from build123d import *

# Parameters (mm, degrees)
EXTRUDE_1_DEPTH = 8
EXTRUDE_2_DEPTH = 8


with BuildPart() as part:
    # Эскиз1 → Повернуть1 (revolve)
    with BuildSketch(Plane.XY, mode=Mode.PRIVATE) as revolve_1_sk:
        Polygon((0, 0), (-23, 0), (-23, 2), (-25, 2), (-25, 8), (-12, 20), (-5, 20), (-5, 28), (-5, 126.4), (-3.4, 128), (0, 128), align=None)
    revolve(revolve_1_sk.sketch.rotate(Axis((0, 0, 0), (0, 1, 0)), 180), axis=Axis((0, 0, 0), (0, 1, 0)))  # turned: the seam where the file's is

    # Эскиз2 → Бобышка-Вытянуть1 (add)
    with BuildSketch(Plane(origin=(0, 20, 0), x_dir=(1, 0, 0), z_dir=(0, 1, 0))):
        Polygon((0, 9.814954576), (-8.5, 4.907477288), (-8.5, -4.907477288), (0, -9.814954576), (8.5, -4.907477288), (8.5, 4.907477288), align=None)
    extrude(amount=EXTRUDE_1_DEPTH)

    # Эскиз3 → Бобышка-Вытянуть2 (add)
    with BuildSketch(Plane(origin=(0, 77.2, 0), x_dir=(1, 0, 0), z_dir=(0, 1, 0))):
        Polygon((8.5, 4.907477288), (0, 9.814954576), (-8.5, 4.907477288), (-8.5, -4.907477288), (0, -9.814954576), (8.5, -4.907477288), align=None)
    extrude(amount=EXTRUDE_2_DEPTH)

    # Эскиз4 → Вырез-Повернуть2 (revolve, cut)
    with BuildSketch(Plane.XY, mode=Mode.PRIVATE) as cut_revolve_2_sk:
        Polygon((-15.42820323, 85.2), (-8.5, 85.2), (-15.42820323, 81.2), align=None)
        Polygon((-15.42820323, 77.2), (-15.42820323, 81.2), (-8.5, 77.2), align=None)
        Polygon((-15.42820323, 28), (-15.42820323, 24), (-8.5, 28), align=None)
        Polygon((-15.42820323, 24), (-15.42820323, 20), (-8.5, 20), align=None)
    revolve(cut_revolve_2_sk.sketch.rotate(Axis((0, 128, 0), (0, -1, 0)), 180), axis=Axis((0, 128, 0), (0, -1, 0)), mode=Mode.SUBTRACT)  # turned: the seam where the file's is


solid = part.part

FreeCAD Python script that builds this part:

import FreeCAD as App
import Part
import Sketcher
Q = App.Units.Quantity

doc = App.newDocument("Part")
body = doc.addObject("PartDesign::Body", "Body")

# Sketch on XY plane
sketch1 = doc.addObject("Sketcher::SketchObject", "Sketch")
body.addObject(sketch1)
sketch1.AttachmentSupport = (doc.XY_Plane, [""])
sketch1.MapMode = "FlatFace"
sketch1.addGeometry([
    Part.LineSegment(App.Vector(-23, 0, 0), App.Vector(0, 0, 0)),  # 0
    Part.LineSegment(App.Vector(0, 0, 0), App.Vector(0, 128, 0)),  # 1
    Part.LineSegment(App.Vector(0, 128, 0), App.Vector(-3.4, 128, 0)),  # 2
    Part.LineSegment(App.Vector(-3.4, 128, 0), App.Vector(-5, 126.4, 0)),  # 3
    Part.LineSegment(App.Vector(-5, 126.4, 0), App.Vector(-5, 20, 0)),  # 4
    Part.LineSegment(App.Vector(-5, 20, 0), App.Vector(-12, 20, 0)),  # 5
    Part.LineSegment(App.Vector(-12, 20, 0), App.Vector(-25, 8, 0)),  # 6
    Part.LineSegment(App.Vector(-25, 8, 0), App.Vector(-25, 2, 0)),  # 7
    Part.LineSegment(App.Vector(-25, 2, 0), App.Vector(-23, 2, 0)),  # 8
    Part.LineSegment(App.Vector(-23, 2, 0), App.Vector(-23, 0, 0)),  # 9
], False)
sketch1.addConstraint([
    Sketcher.Constraint("Coincident", 0, 2, 1, 1),
    Sketcher.Constraint("Coincident", 1, 2, 2, 1),
    Sketcher.Constraint("Coincident", 2, 2, 3, 1),
    Sketcher.Constraint("Coincident", 3, 2, 4, 1),
    Sketcher.Constraint("Coincident", 4, 2, 5, 1),
    Sketcher.Constraint("Coincident", 5, 2, 6, 1),
    Sketcher.Constraint("Coincident", 6, 2, 7, 1),
    Sketcher.Constraint("Coincident", 7, 2, 8, 1),
    Sketcher.Constraint("Coincident", 8, 2, 9, 1),
    Sketcher.Constraint("Coincident", 9, 2, 0, 1),
    Sketcher.Constraint("Horizontal", 0),
    Sketcher.Constraint("Vertical", 1),
    Sketcher.Constraint("Horizontal", 2),
    Sketcher.Constraint("Vertical", 4),
    Sketcher.Constraint("Horizontal", 5),
    Sketcher.Constraint("Vertical", 7),
    Sketcher.Constraint("Horizontal", 8),
    Sketcher.Constraint("Vertical", 9),
    Sketcher.Constraint("Coincident", 0, 2, -1, 1),
    Sketcher.Constraint("Equal", 8, 9),
    Sketcher.Constraint("DistanceX", 0, 1, 0, 2, 23.0),
    Sketcher.Constraint("DistanceX", 5, 2, 5, 1, 7.0),
    Sketcher.Constraint("DistanceX", 8, 1, 8, 2, 2.0),
    Sketcher.Constraint("DistanceY", 1, 1, 1, 2, 128.0),
    Sketcher.Constraint("DistanceY", 7, 2, 7, 1, 6.0),
    Sketcher.Constraint("Angle", 3, Q("-135 deg")),
    Sketcher.Constraint("DistanceX", 2, 2, 2, 1, 3.4),
    Sketcher.Constraint("DistanceY", 4, 2, 4, 1, 106.4),
    Sketcher.Constraint("DistanceX", 3, 2, -1, 1, 5.0),
])
revolution = doc.addObject("PartDesign::Revolution", "Revolution")
body.addObject(revolution)
revolution.Profile = sketch1
revolution.ReferenceAxis = (sketch1, ["V_Axis"])
revolution.Angle = 360

# Sketch on XZ plane
sketch2 = doc.addObject("Sketcher::SketchObject", "Sketch001")
body.addObject(sketch2)
sketch2.AttachmentSupport = (doc.XZ_Plane, [""])
sketch2.MapMode = "FlatFace"
sketch2.AttachmentOffset = App.Placement(App.Vector(0, 0, -20), App.Rotation())
sketch2.addGeometry([
    Part.LineSegment(App.Vector(0, -10, 0), App.Vector(-8, -5, 0)),  # 0
    Part.LineSegment(App.Vector(-8, -5, 0), App.Vector(-8, 5, 0)),  # 1
    Part.LineSegment(App.Vector(-8, 5, 0), App.Vector(0, 10, 0)),  # 2
    Part.LineSegment(App.Vector(0, 10, 0), App.Vector(8, 5, 0)),  # 3
    Part.LineSegment(App.Vector(8, 5, 0), App.Vector(8, -5, 0)),  # 4
    Part.LineSegment(App.Vector(8, -5, 0), App.Vector(0, -10, 0)),  # 5
], False)
sketch2.addConstraint([
    Sketcher.Constraint("Coincident", 0, 2, 1, 1),
    Sketcher.Constraint("Coincident", 1, 2, 2, 1),
    Sketcher.Constraint("Coincident", 2, 2, 3, 1),
    Sketcher.Constraint("Coincident", 3, 2, 4, 1),
    Sketcher.Constraint("Coincident", 4, 2, 5, 1),
    Sketcher.Constraint("Coincident", 5, 2, 0, 1),
    Sketcher.Constraint("Vertical", 1),
    Sketcher.Constraint("Vertical", 4),
    Sketcher.Constraint("Symmetric", 0, 2, 3, 2, -1, 1),
    Sketcher.Constraint("Symmetric", 2, 2, 5, 2, -1, 1),
    Sketcher.Constraint("PointOnObject", 2, 2, -2),
    Sketcher.Constraint("Parallel", 2, 5),
    Sketcher.Constraint("Horizontal", 1, 2, 3, 2),
    Sketcher.Constraint("Angle", 0, Q("150 deg")),
    Sketcher.Constraint("DistanceX", 1, 2, 3, 2, 17.0),
    Sketcher.Constraint("DistanceY", 1, 1, 1, 2, 9.814955),
])
pad1 = doc.addObject("PartDesign::Pad", "Pad")
body.addObject(pad1)
pad1.Profile = sketch2
pad1.Length = 8
pad1.Reversed = True

# Sketch on XZ plane
sketch3 = doc.addObject("Sketcher::SketchObject", "Sketch002")
body.addObject(sketch3)
sketch3.AttachmentSupport = (doc.XZ_Plane, [""])
sketch3.MapMode = "FlatFace"
sketch3.AttachmentOffset = App.Placement(App.Vector(0, 0, -77.2), App.Rotation())
sketch3.addGeometry([
    Part.LineSegment(App.Vector(8, -5, 0), App.Vector(0, -10, 0)),  # 0
    Part.LineSegment(App.Vector(0, -10, 0), App.Vector(-8, -5, 0)),  # 1
    Part.LineSegment(App.Vector(-8, -5, 0), App.Vector(-8, 5, 0)),  # 2
    Part.LineSegment(App.Vector(-8, 5, 0), App.Vector(0, 10, 0)),  # 3
    Part.LineSegment(App.Vector(0, 10, 0), App.Vector(8, 5, 0)),  # 4
    Part.LineSegment(App.Vector(8, 5, 0), App.Vector(8, -5, 0)),  # 5
], False)
sketch3.addConstraint([
    Sketcher.Constraint("Coincident", 0, 2, 1, 1),
    Sketcher.Constraint("Coincident", 1, 2, 2, 1),
    Sketcher.Constraint("Coincident", 2, 2, 3, 1),
    Sketcher.Constraint("Coincident", 3, 2, 4, 1),
    Sketcher.Constraint("Coincident", 4, 2, 5, 1),
    Sketcher.Constraint("Coincident", 5, 2, 0, 1),
    Sketcher.Constraint("Vertical", 2),
    Sketcher.Constraint("Vertical", 5),
    Sketcher.Constraint("Symmetric", 0, 2, 3, 2, -1, 1),
    Sketcher.Constraint("Symmetric", 1, 2, 4, 2, -1, 1),
    Sketcher.Constraint("PointOnObject", 0, 2, -2),
    Sketcher.Constraint("Parallel", 0, 3),
    Sketcher.Constraint("Horizontal", 2, 2, 4, 2),
    Sketcher.Constraint("Angle", 0, Q("-150 deg")),
    Sketcher.Constraint("DistanceX", 2, 2, 4, 2, 17.0),
    Sketcher.Constraint("DistanceY", 2, 1, 2, 2, 9.814955),
])
pad2 = doc.addObject("PartDesign::Pad", "Pad001")
body.addObject(pad2)
pad2.Profile = sketch3
pad2.Length = 8
pad2.Reversed = True

# Sketch on XY plane
sketch4 = doc.addObject("Sketcher::SketchObject", "Sketch003")
body.addObject(sketch4)
sketch4.AttachmentSupport = (doc.XY_Plane, [""])
sketch4.MapMode = "FlatFace"
sketch4.addGeometry([
    Part.LineSegment(App.Vector(-8.5, 85.2, 0), App.Vector(-15.4, 85.2, 0)),  # 0
    Part.LineSegment(App.Vector(-15.4, 85.2, 0), App.Vector(-15.4, 81.2, 0)),  # 1
    Part.LineSegment(App.Vector(-15.4, 81.2, 0), App.Vector(-8.5, 85.2, 0)),  # 2
    Part.LineSegment(App.Vector(-15.4, 81.2, 0), App.Vector(-15.4, 77.2, 0)),  # 3
    Part.LineSegment(App.Vector(-15.4, 77.2, 0), App.Vector(-8.5, 77.2, 0)),  # 4
    Part.LineSegment(App.Vector(-8.5, 77.2, 0), App.Vector(-15.4, 81.2, 0)),  # 5
    Part.LineSegment(App.Vector(-15.4, 28, 0), App.Vector(-15.4, 24, 0)),  # 6
    Part.LineSegment(App.Vector(-15.4, 24, 0), App.Vector(-8.5, 28, 0)),  # 7
    Part.LineSegment(App.Vector(-8.5, 28, 0), App.Vector(-15.4, 28, 0)),  # 8
    Part.LineSegment(App.Vector(-15.4, 24, 0), App.Vector(-15.4, 20, 0)),  # 9
    Part.LineSegment(App.Vector(-15.4, 20, 0), App.Vector(-8.5, 20, 0)),  # 10
    Part.LineSegment(App.Vector(-8.5, 20, 0), App.Vector(-15.4, 24, 0)),  # 11
], False)
sketch4.addConstraint([
    Sketcher.Constraint("Coincident", 0, 2, 1, 1),
    Sketcher.Constraint("Coincident", 1, 2, 2, 1),
    Sketcher.Constraint("Coincident", 2, 2, 0, 1),
    Sketcher.Constraint("Coincident", 3, 2, 4, 1),
    Sketcher.Constraint("Coincident", 4, 2, 5, 1),
    Sketcher.Constraint("Coincident", 5, 2, 3, 1),
    Sketcher.Constraint("Coincident", 6, 2, 7, 1),
    Sketcher.Constraint("Coincident", 7, 2, 8, 1),
    Sketcher.Constraint("Coincident", 8, 2, 6, 1),
    Sketcher.Constraint("Coincident", 9, 2, 10, 1),
    Sketcher.Constraint("Coincident", 10, 2, 11, 1),
    Sketcher.Constraint("Coincident", 11, 2, 9, 1),
    Sketcher.Constraint("Horizontal", 0),
    Sketcher.Constraint("Vertical", 1),
    Sketcher.Constraint("Vertical", 3),
    Sketcher.Constraint("Horizontal", 4),
    Sketcher.Constraint("Vertical", 6),
    Sketcher.Constraint("Horizontal", 8),
    Sketcher.Constraint("Vertical", 9),
    Sketcher.Constraint("Horizontal", 10),
    Sketcher.Constraint("Coincident", 5, 2, 1, 2),
    Sketcher.Constraint("Coincident", 11, 2, 6, 2),
    Sketcher.Constraint("Parallel", 2, 7),
    Sketcher.Constraint("Parallel", 5, 11),
    Sketcher.Constraint("Vertical", 2, 2, 4, 2),
    Sketcher.Constraint("Vertical", 5, 2, 6, 2),
    Sketcher.Constraint("Vertical", 4, 2, 7, 2),
    Sketcher.Constraint("Vertical", 7, 2, 10, 2),
    Sketcher.Constraint("Equal", 1, 3),
    Sketcher.Constraint("DistanceY", 1, 2, 1, 1, 4.0),
    Sketcher.Constraint("Angle", 2, Q("30 deg")),
    Sketcher.Constraint("DistanceY", -1, 1, 6, 2, 24.0),
    Sketcher.Constraint("DistanceY", -1, 1, 0, 2, 85.2),
    Sketcher.Constraint("DistanceX", 2, 2, -1, 1, 8.5),
])
groove = doc.addObject("PartDesign::Groove", "Groove")
body.addObject(groove)
groove.Profile = sketch4
groove.ReferenceAxis = (sketch4, ["V_Axis"])
groove.Angle = 360

doc.recompute()
